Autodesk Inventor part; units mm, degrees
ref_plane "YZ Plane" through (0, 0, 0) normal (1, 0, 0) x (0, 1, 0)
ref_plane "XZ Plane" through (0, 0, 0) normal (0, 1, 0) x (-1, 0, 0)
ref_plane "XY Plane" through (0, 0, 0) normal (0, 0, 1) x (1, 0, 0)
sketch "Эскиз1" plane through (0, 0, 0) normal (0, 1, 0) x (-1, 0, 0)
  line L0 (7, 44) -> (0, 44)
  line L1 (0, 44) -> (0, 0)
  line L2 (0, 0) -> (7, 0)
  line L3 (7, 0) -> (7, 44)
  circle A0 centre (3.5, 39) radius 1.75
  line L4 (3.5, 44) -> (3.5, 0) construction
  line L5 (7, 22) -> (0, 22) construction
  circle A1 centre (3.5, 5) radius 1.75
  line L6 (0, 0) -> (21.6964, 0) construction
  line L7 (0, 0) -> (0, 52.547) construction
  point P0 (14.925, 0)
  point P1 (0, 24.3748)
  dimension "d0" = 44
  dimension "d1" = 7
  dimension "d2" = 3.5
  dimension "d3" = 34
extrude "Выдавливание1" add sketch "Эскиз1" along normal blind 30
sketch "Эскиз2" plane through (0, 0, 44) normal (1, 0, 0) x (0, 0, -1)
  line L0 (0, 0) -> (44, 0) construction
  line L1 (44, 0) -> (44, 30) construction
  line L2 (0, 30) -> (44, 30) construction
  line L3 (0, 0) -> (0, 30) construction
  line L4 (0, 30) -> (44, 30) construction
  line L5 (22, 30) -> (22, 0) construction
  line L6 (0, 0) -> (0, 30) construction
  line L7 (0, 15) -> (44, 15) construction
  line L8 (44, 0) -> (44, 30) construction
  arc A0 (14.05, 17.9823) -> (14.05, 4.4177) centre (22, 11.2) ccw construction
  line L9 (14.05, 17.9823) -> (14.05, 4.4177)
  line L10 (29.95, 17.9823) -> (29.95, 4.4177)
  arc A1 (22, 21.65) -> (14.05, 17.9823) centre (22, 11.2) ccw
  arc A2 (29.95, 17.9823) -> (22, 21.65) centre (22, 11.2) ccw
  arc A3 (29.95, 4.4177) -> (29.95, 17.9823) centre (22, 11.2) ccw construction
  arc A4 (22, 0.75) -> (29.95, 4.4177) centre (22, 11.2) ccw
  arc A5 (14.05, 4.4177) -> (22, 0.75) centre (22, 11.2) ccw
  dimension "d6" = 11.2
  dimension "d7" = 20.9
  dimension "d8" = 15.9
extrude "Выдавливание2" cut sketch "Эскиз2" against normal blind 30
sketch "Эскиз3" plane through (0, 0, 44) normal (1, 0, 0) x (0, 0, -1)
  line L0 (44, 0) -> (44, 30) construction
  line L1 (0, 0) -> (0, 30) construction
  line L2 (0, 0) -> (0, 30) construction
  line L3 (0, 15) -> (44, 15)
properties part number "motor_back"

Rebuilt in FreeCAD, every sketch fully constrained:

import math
import FreeCAD as App
import Part
import Sketcher

V = App.Vector

doc = App.newDocument("Part")
body = doc.addObject("PartDesign::Body", "Body")

sketch1 = body.newObject("Sketcher::SketchObject", "Sketch")
sketch1.AttachmentSupport = (doc.getObject("XZ_Plane"), [""])
sketch1.MapMode = "FlatFace"
sketch1.addGeometry([
    Part.LineSegment(V(-7, 0, 0), V(-7, 44, 0)),
    Part.LineSegment(V(-7, 44, 0), V(0, 44, 0)),
    Part.LineSegment(V(0, 44, 0), V(0, 0, 0)),
    Part.LineSegment(V(0, 0, 0), V(-7, 0, 0)),
    Part.Circle(V(-3.5, 5, 0), V(0, 0, 1), 1.8),
    Part.Circle(V(-3.5, 39, 0), V(0, 0, 1), 1.8),
], False)
sketch1.addConstraint([
    Sketcher.Constraint("Coincident", 0, 2, 1, 1),
    Sketcher.Constraint("Coincident", 1, 2, 2, 1),
    Sketcher.Constraint("Coincident", 2, 2, 3, 1),
    Sketcher.Constraint("Coincident", 3, 2, 0, 1),
    Sketcher.Constraint("Vertical", 0),
    Sketcher.Constraint("Horizontal", 1),
    Sketcher.Constraint("Vertical", 2),
    Sketcher.Constraint("Horizontal", 3),
    Sketcher.Constraint("Coincident", 2, 2, -1, 1),
    Sketcher.Constraint("Equal", 4, 5),
    Sketcher.Constraint("Vertical", 4, 3, 5, 3),
    Sketcher.Constraint("Diameter", 4, 3.5),
    Sketcher.Constraint("DistanceX", 1, 1, 1, 2, 7.0),
    Sketcher.Constraint("DistanceY", 0, 1, 0, 2, 44.0),
    Sketcher.Constraint("DistanceY", 4, 3, 5, 3, 34.0),
    Sketcher.Constraint("DistanceX", 4, 3, -1, 1, 3.5),
    Sketcher.Constraint("DistanceY", -1, 1, 4, 3, 5.0),
])
pad1 = body.newObject("PartDesign::Pad", "Pad")
pad1.Profile = sketch1
pad1.Length = 30
pad1.Reversed = True

sketch2 = body.newObject("Sketcher::SketchObject", "Sketch001")
sketch2.AttachmentSupport = (doc.getObject("YZ_Plane"), [""])
sketch2.MapMode = "FlatFace"
sketch2.addGeometry([
    Part.ArcOfCircle(Part.Circle(V(11, 22, 0), V(0, 0, 1), 10), math.radians(0), math.radians(50)),
    Part.LineSegment(V(18, 30, 0), V(4, 30, 0)),
    Part.ArcOfCircle(Part.Circle(V(11, 22, 0), V(0, 0, 1), 10), math.radians(130), math.radians(180)),
    Part.ArcOfCircle(Part.Circle(V(11, 22, 0), V(0, 0, 1), 10), math.radians(180), math.radians(230)),
    Part.LineSegment(V(4, 14, 0), V(18, 14, 0)),
    Part.ArcOfCircle(Part.Circle(V(11, 22, 0), V(0, 0, 1), 10), math.radians(-50), math.radians(0)),
], False)
sketch2.addConstraint([
    Sketcher.Constraint("Coincident", 0, 2, 1, 1),
    Sketcher.Constraint("Coincident", 1, 2, 2, 1),
    Sketcher.Constraint("Tangent", 2, 2, 3, 1),
    Sketcher.Constraint("Coincident", 3, 2, 4, 1),
    Sketcher.Constraint("Coincident", 4, 2, 5, 1),
    Sketcher.Constraint("Tangent", 5, 2, 0, 1),
    Sketcher.Constraint("Horizontal", 1),
    Sketcher.Constraint("Horizontal", 4),
    Sketcher.Constraint("Coincident", 2, 3, 0, 3),
    Sketcher.Constraint("Equal", 0, 2),
    Sketcher.Constraint("Equal", 2, 3),
    Sketcher.Constraint("Equal", 3, 5),
    Sketcher.Constraint("Horizontal", 5, 3, 2, 2),
    Sketcher.Constraint("Horizontal", 2, 2, 5, 2),
    Sketcher.Constraint("Vertical", 1, 2, 3, 2),
    Sketcher.Constraint("Radius", 0, 10.45),
    Sketcher.Constraint("DistanceX", -1, 1, 0, 3, 11.2),
    Sketcher.Constraint("DistanceY", -1, 1, 0, 3, 22.0),
    Sketcher.Constraint("DistanceY", -1, 1, 0, 2, 29.95),
])
pocket1 = body.newObject("PartDesign::Pocket", "Pocket")
pocket1.Profile = sketch2
pocket1.Length = 30

doc.recompute()
